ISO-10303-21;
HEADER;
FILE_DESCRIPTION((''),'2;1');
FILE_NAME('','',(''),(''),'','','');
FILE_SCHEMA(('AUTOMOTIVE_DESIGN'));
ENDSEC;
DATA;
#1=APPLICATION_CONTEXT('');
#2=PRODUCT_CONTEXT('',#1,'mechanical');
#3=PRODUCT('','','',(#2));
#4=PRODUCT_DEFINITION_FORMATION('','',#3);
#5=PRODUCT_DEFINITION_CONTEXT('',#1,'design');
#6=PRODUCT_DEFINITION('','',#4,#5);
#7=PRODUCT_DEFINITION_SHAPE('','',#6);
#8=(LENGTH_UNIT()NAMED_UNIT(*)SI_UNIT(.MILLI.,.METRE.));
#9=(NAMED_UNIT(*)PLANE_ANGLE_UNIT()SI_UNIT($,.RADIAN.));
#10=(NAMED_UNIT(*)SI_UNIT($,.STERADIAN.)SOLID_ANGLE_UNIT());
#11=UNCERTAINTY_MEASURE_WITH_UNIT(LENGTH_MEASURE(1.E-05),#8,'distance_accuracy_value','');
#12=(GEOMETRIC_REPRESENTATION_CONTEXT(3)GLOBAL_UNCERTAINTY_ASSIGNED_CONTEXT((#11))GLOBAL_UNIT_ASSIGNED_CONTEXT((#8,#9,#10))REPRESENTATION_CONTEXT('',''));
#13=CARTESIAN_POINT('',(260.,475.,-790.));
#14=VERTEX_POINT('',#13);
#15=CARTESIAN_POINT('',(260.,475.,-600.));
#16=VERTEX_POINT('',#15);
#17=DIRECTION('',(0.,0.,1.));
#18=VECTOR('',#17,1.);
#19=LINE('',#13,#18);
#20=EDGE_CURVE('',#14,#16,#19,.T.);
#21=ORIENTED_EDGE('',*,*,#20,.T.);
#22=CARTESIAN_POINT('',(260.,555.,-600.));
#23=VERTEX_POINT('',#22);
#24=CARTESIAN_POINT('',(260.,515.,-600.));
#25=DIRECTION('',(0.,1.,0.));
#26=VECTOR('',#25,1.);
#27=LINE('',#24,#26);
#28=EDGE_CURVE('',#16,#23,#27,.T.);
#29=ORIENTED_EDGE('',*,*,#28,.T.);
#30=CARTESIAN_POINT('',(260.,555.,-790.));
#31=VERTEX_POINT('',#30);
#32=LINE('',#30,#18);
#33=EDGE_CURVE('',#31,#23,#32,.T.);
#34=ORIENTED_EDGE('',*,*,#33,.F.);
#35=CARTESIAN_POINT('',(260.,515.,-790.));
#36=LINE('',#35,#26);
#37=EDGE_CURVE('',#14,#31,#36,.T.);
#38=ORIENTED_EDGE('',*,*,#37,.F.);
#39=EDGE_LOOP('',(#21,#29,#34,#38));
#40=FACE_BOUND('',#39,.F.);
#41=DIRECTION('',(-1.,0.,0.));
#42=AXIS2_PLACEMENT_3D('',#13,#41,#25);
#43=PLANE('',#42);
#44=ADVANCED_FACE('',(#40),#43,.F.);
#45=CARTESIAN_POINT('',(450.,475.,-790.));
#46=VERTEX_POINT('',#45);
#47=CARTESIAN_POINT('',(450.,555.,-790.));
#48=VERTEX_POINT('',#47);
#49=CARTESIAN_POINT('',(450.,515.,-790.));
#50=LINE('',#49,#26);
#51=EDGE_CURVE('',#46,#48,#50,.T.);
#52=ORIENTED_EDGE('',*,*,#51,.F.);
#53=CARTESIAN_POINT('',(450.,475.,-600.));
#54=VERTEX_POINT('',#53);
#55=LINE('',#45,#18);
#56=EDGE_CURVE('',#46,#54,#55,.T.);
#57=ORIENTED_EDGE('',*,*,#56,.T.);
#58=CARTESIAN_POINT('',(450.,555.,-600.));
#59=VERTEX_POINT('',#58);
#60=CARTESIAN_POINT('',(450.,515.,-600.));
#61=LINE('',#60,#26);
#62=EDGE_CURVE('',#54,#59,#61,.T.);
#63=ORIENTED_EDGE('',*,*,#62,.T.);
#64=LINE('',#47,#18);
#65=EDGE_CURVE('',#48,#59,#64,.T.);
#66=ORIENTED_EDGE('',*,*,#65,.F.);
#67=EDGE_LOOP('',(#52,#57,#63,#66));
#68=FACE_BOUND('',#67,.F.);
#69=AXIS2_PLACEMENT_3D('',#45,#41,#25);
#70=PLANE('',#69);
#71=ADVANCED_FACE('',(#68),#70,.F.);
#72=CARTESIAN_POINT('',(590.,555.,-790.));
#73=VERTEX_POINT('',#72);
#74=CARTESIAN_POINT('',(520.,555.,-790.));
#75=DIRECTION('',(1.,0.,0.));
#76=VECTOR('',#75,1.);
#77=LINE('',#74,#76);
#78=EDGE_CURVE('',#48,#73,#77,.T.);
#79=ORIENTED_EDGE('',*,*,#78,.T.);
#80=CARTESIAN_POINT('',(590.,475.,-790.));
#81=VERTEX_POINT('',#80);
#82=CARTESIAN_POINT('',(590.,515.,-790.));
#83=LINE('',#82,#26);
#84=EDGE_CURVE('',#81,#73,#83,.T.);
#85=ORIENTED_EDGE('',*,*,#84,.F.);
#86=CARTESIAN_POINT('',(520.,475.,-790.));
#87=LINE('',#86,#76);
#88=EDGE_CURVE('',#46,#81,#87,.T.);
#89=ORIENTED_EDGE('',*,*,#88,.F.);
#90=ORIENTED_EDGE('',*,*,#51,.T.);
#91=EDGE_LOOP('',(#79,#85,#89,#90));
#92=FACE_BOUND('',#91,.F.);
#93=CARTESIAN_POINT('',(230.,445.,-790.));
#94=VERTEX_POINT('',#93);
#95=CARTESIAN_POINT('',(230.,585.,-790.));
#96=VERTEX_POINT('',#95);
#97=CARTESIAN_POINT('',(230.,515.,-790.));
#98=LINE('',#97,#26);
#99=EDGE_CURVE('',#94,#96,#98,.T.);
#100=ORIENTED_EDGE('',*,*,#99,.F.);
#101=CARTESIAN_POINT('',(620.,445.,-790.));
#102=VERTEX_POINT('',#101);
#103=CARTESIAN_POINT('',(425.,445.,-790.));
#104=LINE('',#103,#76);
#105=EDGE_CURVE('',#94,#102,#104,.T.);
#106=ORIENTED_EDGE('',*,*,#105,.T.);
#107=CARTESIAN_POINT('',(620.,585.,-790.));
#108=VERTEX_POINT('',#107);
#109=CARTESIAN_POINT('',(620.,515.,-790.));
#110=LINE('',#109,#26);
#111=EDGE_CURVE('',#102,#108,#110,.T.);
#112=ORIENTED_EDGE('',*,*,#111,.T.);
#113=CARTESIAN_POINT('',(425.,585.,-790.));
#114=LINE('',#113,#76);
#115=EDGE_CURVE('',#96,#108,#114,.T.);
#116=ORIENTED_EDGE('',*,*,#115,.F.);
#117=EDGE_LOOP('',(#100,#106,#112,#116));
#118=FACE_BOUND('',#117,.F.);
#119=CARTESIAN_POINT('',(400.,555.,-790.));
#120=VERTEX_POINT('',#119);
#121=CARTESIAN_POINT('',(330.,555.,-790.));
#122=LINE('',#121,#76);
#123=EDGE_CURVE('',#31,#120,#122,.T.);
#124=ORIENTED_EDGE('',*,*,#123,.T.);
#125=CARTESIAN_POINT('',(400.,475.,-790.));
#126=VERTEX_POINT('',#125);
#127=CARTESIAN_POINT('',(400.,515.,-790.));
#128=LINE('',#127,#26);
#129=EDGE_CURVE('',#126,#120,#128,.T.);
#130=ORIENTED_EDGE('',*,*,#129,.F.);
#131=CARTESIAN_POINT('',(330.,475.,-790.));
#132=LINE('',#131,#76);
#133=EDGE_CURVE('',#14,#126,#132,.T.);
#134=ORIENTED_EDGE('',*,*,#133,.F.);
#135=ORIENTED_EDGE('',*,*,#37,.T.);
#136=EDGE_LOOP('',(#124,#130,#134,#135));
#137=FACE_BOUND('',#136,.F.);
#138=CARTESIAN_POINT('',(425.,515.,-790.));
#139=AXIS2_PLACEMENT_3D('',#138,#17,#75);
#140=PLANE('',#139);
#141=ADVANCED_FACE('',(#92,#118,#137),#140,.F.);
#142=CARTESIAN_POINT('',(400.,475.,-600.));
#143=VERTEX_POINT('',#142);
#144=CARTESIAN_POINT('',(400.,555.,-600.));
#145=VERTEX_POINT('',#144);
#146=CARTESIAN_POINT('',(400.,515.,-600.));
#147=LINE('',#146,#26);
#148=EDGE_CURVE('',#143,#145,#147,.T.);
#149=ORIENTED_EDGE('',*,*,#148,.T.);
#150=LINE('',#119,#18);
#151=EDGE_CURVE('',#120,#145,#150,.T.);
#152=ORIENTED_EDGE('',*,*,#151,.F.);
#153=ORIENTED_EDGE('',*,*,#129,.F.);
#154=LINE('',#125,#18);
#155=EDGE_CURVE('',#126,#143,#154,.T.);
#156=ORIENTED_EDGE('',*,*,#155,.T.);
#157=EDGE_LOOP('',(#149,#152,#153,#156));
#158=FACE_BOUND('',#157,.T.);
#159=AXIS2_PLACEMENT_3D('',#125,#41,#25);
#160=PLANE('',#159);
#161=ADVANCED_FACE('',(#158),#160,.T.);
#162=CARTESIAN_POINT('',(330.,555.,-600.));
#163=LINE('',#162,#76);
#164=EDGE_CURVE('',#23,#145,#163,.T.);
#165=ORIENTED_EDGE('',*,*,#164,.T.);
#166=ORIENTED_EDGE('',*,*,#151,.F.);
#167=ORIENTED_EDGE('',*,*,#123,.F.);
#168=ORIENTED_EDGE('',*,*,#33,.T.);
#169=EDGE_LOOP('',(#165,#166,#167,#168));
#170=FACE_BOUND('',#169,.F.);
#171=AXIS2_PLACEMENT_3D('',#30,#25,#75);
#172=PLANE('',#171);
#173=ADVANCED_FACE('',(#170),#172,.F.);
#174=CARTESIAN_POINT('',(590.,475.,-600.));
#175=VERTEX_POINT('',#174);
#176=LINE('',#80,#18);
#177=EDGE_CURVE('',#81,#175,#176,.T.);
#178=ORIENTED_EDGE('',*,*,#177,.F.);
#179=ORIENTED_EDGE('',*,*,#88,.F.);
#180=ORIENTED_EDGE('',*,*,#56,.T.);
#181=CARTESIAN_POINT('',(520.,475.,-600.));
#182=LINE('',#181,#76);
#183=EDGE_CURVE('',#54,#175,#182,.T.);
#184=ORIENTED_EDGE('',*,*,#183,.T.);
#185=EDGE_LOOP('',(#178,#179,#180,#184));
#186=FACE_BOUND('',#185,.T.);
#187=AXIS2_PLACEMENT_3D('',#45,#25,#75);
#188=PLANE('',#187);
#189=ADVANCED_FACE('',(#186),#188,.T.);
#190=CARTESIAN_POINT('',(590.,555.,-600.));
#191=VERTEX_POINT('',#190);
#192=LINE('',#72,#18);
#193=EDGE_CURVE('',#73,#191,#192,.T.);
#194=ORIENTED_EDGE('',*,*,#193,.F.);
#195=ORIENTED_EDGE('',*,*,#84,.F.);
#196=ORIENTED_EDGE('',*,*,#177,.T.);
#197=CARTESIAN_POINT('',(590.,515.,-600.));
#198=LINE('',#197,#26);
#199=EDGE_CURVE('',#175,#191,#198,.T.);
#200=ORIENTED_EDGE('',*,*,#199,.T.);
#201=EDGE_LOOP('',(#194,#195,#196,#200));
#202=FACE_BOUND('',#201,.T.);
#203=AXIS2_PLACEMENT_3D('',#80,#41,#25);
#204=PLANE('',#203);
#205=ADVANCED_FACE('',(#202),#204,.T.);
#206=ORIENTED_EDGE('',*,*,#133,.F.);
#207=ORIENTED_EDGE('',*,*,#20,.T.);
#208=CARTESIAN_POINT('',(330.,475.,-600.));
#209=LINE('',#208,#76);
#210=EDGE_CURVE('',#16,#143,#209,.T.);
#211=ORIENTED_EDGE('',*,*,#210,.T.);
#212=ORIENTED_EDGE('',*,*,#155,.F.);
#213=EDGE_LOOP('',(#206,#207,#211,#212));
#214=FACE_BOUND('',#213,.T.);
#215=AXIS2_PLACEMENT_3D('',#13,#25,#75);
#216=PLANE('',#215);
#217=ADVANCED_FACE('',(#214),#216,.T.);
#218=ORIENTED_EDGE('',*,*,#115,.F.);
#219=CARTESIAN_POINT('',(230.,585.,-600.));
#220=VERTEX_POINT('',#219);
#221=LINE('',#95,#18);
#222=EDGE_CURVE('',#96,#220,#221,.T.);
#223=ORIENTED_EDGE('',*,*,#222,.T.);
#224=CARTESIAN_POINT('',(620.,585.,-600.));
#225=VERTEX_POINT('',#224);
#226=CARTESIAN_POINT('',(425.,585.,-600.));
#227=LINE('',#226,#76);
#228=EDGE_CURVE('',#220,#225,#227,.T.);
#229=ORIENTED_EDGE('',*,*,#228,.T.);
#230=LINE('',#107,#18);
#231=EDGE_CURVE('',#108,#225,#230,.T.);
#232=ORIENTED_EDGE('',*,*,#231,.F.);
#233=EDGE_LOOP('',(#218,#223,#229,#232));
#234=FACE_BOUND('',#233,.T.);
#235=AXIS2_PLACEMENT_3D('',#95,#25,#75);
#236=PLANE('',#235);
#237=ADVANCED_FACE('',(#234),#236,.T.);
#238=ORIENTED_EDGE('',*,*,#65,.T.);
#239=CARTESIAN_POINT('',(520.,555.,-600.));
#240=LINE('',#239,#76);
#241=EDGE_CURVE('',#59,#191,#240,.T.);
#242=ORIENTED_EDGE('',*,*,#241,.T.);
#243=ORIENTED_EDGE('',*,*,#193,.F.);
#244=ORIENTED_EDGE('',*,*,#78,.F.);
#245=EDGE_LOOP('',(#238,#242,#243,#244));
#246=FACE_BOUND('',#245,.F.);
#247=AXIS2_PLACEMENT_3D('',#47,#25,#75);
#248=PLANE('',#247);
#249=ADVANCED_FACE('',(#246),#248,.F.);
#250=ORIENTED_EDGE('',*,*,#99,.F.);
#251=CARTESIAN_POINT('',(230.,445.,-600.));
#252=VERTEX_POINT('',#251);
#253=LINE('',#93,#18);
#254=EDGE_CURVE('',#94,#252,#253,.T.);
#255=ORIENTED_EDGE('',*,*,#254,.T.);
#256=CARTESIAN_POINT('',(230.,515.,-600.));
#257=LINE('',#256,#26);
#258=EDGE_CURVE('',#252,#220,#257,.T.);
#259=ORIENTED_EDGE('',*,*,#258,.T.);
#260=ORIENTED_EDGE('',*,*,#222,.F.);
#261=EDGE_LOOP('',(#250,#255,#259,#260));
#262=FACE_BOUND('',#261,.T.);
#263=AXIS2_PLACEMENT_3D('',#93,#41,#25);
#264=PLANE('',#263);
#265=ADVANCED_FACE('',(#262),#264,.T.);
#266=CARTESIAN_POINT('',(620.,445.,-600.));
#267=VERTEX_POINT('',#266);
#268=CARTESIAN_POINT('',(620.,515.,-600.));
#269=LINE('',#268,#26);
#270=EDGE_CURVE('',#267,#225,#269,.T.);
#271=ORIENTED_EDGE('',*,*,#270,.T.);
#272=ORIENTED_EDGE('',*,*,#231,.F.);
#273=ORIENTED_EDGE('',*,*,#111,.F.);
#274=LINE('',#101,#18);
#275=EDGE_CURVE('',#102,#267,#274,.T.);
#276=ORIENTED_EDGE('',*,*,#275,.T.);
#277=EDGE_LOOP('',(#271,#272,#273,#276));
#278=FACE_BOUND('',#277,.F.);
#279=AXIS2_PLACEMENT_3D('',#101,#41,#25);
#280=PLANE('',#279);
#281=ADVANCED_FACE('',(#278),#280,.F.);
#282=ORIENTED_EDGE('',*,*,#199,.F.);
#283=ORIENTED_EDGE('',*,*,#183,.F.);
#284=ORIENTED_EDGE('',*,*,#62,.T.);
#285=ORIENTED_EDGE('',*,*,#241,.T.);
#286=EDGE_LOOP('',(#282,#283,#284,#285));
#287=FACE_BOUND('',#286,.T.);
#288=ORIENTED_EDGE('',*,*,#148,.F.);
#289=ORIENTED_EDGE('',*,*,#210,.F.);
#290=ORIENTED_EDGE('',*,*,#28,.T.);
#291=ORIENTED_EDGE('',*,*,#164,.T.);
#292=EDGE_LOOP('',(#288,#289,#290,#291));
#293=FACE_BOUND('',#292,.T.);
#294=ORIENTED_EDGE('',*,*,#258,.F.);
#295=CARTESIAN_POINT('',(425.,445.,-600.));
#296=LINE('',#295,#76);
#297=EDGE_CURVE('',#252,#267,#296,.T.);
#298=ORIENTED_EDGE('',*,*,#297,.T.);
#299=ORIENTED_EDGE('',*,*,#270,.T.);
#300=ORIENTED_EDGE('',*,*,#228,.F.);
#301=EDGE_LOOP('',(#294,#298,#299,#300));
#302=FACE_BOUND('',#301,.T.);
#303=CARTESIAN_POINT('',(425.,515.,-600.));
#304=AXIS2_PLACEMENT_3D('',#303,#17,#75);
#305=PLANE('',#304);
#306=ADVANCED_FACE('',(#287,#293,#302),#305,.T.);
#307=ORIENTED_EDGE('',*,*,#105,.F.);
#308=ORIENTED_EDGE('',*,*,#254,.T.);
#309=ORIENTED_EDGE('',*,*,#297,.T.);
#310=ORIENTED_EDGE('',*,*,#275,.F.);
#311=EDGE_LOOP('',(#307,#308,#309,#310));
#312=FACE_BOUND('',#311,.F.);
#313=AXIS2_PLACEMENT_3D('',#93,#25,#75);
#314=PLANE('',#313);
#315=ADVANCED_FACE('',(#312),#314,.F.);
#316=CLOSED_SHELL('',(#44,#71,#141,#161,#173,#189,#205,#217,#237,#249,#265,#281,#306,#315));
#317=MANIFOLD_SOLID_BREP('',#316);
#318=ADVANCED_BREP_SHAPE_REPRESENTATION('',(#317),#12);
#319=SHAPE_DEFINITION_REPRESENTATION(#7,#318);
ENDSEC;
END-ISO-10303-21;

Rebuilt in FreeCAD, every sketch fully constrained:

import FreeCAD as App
import Part
import Sketcher
Q = App.Units.Quantity

doc = App.newDocument("Part")
body = doc.addObject("PartDesign::Body", "Body")

# Sketch on XY plane
sketch1 = body.newObject("Sketcher::SketchObject", "Sketch")
sketch1.AttachmentSupport = (doc.getObject("XY_Plane"), [""])
sketch1.MapMode = "FlatFace"
sketch1.addGeometry(Part.LineSegment(App.Vector(220, 110, 0), App.Vector(220, 30, 0)), False)
sketch1.addGeometry(Part.LineSegment(App.Vector(220, 30, 0), App.Vector(360, 30, 0)), False)
sketch1.addGeometry(Part.LineSegment(App.Vector(360, 30, 0), App.Vector(360, 110, 0)), False)
sketch1.addGeometry(Part.LineSegment(App.Vector(360, 110, 0), App.Vector(220, 110, 0)), False)
sketch1.addConstraint(Sketcher.Constraint("Coincident", 0, 2, 1, 1))
sketch1.addConstraint(Sketcher.Constraint("Coincident", 1, 2, 2, 1))
sketch1.addConstraint(Sketcher.Constraint("Coincident", 2, 2, 3, 1))
sketch1.addConstraint(Sketcher.Constraint("Coincident", 3, 2, 0, 1))
sketch1.addConstraint(Sketcher.Constraint("Vertical", 0))
sketch1.addConstraint(Sketcher.Constraint("Horizontal", 1))
sketch1.addConstraint(Sketcher.Constraint("Vertical", 2))
sketch1.addConstraint(Sketcher.Constraint("Horizontal", 3))
sketch1.addConstraint(Sketcher.Constraint("DistanceX", 1, 1, 1, 2, Q("140 mm")))
sketch1.addConstraint(Sketcher.Constraint("DistanceY", 0, 2, 0, 1, Q("80 mm")))
sketch1.addConstraint(Sketcher.Constraint("DistanceX", -1, 1, 0, 2, Q("220 mm")))
sketch1.addConstraint(Sketcher.Constraint("DistanceY", -1, 1, 0, 2, Q("30 mm")))
pad1 = body.newObject("PartDesign::Pad", "Pad")
pad1.Profile = sketch1
pad1.Length = 190
body2 = doc.addObject("PartDesign::Body", "Body001")
body2.AllowCompound = True

# Sketch on XY plane
sketch2 = body2.newObject("Sketcher::SketchObject", "Sketch001")
sketch2.AttachmentSupport = (doc.getObject("XY_Plane001"), [""])
sketch2.MapMode = "FlatFace"
sketch2.addGeometry(Part.LineSegment(App.Vector(30, 110, 0), App.Vector(30, 30, 0)), False)
sketch2.addGeometry(Part.LineSegment(App.Vector(30, 30, 0), App.Vector(170, 30, 0)), False)
sketch2.addGeometry(Part.LineSegment(App.Vector(170, 30, 0), App.Vector(170, 110, 0)), False)
sketch2.addGeometry(Part.LineSegment(App.Vector(170, 110, 0), App.Vector(30, 110, 0)), False)
sketch2.addConstraint(Sketcher.Constraint("Coincident", 0, 2, 1, 1))
sketch2.addConstraint(Sketcher.Constraint("Coincident", 1, 2, 2, 1))
sketch2.addConstraint(Sketcher.Constraint("Coincident", 2, 2, 3, 1))
sketch2.addConstraint(Sketcher.Constraint("Coincident", 3, 2, 0, 1))
sketch2.addConstraint(Sketcher.Constraint("Vertical", 0))
sketch2.addConstraint(Sketcher.Constraint("Horizontal", 1))
sketch2.addConstraint(Sketcher.Constraint("Vertical", 2))
sketch2.addConstraint(Sketcher.Constraint("Horizontal", 3))
sketch2.addConstraint(Sketcher.Constraint("DistanceX", 1, 1, 1, 2, Q("140 mm")))
sketch2.addConstraint(Sketcher.Constraint("DistanceY", 0, 2, 0, 1, Q("80 mm")))
sketch2.addConstraint(Sketcher.Constraint("DistanceX", -1, 1, 0, 2, Q("30 mm")))
sketch2.addConstraint(Sketcher.Constraint("DistanceY", -1, 1, 0, 2, Q("30 mm")))
pad2 = body2.newObject("PartDesign::Pad", "Pad001")
pad2.Profile = sketch2
pad2.Length = 190
doc.recompute()

boolean = body2.newObject("PartDesign::Boolean", "Boolean")
boolean.Type = "Fuse"
boolean.addObjects([body])
body3 = doc.addObject("PartDesign::Body", "Body002")

# Sketch on XY plane
sketch3 = body3.newObject("Sketcher::SketchObject", "Sketch002")
sketch3.AttachmentSupport = (doc.getObject("XY_Plane002"), [""])
sketch3.MapMode = "FlatFace"
sketch3.addGeometry(Part.LineSegment(App.Vector(0, 140, 0), App.Vector(0, 0, 0)), False)
sketch3.addGeometry(Part.LineSegment(App.Vector(0, 0, 0), App.Vector(390, 0, 0)), False)
sketch3.addGeometry(Part.LineSegment(App.Vector(390, 0, 0), App.Vector(390, 140, 0)), False)
sketch3.addGeometry(Part.LineSegment(App.Vector(390, 140, 0), App.Vector(0, 140, 0)), False)
sketch3.addConstraint(Sketcher.Constraint("Coincident", 0, 2, 1, 1))
sketch3.addConstraint(Sketcher.Constraint("Coincident", 1, 2, 2, 1))
sketch3.addConstraint(Sketcher.Constraint("Coincident", 2, 2, 3, 1))
sketch3.addConstraint(Sketcher.Constraint("Coincident", 3, 2, 0, 1))
sketch3.addConstraint(Sketcher.Constraint("Vertical", 0))
sketch3.addConstraint(Sketcher.Constraint("Horizontal", 1))
sketch3.addConstraint(Sketcher.Constraint("Vertical", 2))
sketch3.addConstraint(Sketcher.Constraint("Horizontal", 3))
sketch3.addConstraint(Sketcher.Constraint("Coincident", 0, 2, -1, 1))
sketch3.addConstraint(Sketcher.Constraint("DistanceX", 1, 1, 1, 2, Q("390 mm")))
sketch3.addConstraint(Sketcher.Constraint("DistanceY", 0, 2, 0, 1, Q("140 mm")))
pad3 = body3.newObject("PartDesign::Pad", "Pad002")
pad3.Profile = sketch3
pad3.Length = 190
doc.recompute()

boolean2 = body3.newObject("PartDesign::Boolean", "Boolean001")
boolean2.Type = "Cut"
boolean2.addObjects([body2])
body4 = doc.addObject("PartDesign::Body", "Body003")
doc.recompute()

body3.Placement = App.Placement(App.Vector(230, 445, -790), App.Rotation(App.Vector(0, 0, 1), 0))
boolean3 = body4.newObject("PartDesign::Boolean", "Boolean002")
boolean3.Type = "Fuse"
boolean3.addObjects([body3])

doc.recompute()
